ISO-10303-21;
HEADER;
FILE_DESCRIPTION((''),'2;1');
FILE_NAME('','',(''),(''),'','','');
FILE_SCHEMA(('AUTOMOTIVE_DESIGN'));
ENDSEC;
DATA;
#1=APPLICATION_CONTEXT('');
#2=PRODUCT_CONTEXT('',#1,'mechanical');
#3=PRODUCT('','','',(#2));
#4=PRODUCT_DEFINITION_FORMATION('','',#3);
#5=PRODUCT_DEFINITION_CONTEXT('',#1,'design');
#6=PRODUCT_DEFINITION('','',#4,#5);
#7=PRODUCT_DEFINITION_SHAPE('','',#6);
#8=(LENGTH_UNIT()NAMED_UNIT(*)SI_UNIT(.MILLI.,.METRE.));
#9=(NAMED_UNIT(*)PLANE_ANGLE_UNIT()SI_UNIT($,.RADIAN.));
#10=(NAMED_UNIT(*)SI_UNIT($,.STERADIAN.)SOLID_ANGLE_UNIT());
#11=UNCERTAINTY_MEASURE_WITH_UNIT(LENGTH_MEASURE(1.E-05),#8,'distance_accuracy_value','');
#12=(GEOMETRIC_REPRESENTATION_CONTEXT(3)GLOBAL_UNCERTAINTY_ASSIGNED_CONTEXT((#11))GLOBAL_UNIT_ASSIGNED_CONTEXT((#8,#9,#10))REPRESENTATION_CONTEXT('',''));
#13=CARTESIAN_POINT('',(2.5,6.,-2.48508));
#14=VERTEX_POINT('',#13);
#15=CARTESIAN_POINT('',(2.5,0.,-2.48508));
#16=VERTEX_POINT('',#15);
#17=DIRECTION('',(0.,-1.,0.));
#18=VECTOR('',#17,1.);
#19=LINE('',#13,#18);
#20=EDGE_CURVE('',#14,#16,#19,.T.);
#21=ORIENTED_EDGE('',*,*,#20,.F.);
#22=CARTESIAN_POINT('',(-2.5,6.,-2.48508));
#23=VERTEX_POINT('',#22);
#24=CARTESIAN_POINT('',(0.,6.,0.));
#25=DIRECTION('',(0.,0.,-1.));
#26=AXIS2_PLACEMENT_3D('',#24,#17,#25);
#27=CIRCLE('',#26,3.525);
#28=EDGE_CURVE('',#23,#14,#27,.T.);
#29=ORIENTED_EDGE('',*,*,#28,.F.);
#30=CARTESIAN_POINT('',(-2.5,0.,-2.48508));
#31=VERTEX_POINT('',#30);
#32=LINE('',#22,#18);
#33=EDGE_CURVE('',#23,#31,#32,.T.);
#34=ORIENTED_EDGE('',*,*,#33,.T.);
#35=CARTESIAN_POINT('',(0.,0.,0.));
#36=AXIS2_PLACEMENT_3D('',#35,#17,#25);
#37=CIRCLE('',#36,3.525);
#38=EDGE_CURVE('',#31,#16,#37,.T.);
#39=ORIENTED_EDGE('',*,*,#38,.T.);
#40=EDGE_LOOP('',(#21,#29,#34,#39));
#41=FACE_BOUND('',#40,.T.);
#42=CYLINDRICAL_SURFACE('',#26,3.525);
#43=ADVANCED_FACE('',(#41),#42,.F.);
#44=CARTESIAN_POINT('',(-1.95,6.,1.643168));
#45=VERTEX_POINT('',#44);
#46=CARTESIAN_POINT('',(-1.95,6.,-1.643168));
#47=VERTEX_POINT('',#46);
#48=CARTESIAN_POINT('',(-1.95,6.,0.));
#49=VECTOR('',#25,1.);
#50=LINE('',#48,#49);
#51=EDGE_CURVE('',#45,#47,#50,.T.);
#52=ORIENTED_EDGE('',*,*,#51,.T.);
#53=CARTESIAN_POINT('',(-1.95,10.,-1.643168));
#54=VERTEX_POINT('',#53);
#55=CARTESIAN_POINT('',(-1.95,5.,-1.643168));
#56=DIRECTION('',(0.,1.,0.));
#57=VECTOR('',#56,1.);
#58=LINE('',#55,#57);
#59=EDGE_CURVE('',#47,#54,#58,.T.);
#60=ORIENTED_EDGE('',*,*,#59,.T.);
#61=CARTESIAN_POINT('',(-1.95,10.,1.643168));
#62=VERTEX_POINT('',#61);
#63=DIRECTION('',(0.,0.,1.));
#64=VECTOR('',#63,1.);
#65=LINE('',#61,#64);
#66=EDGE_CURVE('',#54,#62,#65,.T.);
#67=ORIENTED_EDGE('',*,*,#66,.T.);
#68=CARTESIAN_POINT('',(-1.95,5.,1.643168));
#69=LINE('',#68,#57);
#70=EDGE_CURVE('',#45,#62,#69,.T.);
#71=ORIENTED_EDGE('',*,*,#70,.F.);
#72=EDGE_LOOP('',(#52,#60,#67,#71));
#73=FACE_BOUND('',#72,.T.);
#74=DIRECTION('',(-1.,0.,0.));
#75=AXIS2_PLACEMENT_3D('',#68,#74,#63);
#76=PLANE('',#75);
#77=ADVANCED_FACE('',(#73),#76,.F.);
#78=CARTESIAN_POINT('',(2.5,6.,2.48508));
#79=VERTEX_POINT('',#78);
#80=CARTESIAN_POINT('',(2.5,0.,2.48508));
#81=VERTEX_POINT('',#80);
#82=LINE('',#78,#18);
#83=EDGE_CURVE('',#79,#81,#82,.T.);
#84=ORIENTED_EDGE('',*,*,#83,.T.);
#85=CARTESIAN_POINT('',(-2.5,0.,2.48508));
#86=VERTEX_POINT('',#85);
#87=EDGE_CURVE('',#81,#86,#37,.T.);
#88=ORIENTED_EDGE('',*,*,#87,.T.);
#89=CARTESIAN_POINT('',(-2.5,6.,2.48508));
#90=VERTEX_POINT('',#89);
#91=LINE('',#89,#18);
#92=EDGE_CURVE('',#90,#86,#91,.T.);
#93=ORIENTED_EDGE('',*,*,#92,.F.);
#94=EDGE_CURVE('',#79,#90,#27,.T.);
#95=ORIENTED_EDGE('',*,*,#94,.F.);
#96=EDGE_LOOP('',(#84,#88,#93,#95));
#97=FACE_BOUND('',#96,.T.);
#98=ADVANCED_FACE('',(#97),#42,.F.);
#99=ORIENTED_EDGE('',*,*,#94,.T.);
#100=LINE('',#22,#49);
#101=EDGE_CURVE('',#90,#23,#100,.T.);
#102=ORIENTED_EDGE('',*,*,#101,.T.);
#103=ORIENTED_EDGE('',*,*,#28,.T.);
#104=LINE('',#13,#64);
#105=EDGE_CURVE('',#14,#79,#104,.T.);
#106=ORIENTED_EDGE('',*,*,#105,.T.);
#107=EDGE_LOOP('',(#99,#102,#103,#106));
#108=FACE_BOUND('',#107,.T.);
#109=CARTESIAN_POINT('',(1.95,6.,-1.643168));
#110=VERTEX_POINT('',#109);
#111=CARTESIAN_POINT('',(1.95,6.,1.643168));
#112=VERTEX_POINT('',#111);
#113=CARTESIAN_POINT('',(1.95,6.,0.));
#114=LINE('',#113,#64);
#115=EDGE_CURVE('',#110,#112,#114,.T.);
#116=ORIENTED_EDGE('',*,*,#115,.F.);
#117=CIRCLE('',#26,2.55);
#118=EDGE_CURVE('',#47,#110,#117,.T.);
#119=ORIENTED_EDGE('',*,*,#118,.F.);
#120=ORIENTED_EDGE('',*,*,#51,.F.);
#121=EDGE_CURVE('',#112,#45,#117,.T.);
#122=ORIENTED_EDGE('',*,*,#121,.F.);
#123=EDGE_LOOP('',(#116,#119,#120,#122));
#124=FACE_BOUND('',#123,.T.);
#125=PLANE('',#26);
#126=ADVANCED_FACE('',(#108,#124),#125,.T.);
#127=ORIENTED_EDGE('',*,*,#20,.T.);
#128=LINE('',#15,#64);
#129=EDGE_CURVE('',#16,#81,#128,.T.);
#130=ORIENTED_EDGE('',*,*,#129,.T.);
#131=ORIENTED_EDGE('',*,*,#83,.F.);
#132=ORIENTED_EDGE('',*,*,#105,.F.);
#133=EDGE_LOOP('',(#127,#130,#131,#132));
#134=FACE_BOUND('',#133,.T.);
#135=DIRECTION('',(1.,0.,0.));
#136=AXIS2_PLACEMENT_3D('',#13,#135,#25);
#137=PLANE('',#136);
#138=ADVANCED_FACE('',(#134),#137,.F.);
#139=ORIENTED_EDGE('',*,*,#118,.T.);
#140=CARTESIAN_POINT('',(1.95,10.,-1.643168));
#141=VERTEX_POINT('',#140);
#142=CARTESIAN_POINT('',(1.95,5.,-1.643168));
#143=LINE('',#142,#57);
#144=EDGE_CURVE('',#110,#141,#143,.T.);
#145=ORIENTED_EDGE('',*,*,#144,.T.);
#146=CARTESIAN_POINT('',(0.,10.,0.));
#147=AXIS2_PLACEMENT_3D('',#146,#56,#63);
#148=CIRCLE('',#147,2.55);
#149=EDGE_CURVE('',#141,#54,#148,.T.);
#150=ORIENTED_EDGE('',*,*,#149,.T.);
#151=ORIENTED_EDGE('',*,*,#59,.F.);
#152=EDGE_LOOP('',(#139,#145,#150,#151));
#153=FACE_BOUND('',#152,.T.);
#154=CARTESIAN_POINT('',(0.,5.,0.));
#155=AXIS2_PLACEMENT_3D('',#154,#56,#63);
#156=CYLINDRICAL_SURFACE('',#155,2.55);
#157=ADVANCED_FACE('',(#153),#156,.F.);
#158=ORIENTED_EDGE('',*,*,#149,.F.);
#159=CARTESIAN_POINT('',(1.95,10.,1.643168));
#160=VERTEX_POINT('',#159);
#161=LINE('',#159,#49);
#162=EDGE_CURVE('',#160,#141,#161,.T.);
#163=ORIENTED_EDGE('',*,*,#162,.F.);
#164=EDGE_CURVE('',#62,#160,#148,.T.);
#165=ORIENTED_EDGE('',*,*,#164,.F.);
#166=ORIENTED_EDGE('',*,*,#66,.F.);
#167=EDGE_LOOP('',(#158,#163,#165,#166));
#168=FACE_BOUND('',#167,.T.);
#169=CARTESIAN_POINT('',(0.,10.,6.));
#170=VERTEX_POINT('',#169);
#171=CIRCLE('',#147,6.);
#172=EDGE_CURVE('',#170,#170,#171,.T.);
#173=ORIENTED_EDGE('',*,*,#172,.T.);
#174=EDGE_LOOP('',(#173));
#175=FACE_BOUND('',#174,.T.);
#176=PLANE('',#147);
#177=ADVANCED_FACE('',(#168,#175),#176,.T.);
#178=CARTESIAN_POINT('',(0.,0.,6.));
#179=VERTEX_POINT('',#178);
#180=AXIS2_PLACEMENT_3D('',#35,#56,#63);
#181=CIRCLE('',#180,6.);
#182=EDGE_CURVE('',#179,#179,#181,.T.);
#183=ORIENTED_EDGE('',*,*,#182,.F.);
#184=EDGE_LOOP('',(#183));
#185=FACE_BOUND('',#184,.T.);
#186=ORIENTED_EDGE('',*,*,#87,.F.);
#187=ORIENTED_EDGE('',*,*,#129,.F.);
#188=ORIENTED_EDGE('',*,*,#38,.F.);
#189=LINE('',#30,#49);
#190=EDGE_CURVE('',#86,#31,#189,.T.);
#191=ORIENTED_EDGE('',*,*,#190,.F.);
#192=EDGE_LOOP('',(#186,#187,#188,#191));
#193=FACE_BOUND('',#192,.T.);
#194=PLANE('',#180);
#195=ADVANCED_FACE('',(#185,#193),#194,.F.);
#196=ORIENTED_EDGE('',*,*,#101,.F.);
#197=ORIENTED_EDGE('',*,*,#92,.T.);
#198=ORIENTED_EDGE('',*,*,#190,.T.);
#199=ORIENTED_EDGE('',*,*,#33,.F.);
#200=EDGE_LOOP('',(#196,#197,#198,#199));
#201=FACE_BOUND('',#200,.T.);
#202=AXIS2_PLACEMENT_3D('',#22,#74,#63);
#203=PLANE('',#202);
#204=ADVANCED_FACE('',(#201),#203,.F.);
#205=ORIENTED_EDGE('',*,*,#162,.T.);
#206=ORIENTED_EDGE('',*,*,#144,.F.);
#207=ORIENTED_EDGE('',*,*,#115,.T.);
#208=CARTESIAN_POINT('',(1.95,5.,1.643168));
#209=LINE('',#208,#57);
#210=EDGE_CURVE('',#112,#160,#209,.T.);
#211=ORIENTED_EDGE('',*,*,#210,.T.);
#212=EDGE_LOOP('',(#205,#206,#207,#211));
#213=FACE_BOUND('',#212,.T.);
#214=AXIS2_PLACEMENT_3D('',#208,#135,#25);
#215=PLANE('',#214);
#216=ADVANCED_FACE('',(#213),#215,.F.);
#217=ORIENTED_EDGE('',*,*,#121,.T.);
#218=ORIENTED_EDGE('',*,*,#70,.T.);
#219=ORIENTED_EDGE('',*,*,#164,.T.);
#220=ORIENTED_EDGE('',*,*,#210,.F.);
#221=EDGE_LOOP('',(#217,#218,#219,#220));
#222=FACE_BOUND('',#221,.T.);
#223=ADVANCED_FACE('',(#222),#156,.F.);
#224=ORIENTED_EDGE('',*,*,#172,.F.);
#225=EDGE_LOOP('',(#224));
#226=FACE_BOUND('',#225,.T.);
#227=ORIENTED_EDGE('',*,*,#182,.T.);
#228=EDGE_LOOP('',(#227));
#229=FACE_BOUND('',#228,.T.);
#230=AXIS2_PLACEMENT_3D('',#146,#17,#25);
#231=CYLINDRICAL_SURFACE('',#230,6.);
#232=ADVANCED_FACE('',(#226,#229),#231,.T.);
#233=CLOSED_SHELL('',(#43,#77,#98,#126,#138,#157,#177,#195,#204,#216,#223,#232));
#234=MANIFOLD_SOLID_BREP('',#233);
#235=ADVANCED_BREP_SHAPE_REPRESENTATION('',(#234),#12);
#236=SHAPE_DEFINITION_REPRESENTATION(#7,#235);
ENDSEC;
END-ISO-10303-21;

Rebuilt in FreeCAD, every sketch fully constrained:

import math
import FreeCAD as App
import Part
import Sketcher
from FreeCAD import Vector

doc = App.newDocument("Part")
body = doc.addObject("PartDesign::Body", "Body")

sketch1 = body.newObject("Sketcher::SketchObject", "Sketch")
sketch1.AttachmentSupport = (doc.getObject("XZ_Plane"), [""])
sketch1.MapMode = "FlatFace"
sketch1.addGeometry(Part.Circle(Vector(0, 0, 0), Vector(0, 0, 1), 6), False)
sketch1.addConstraint(Sketcher.Constraint("Coincident", 0, 3, -1, 1))
sketch1.addConstraint(Sketcher.Constraint("Diameter", 0, 12.0))
pad1 = body.newObject("PartDesign::Pad", "Pad")
pad1.Profile = sketch1
pad1.Length = 10
pad1.Reversed = True

sketch2 = body.newObject("Sketcher::SketchObject", "Sketch001")
sketch2.AttachmentSupport = (doc.getObject("XZ_Plane"), [""])
sketch2.MapMode = "FlatFace"
sketch2.addGeometry(Part.LineSegment(Vector(2.5, -2.48508, 0), Vector(2.5, 2.48508, 0)), False)
sketch2.addGeometry(Part.ArcOfCircle(Part.Circle(Vector(0, 0, 0), Vector(0, 0, 1), 3.525), math.radians(44.828524), math.radians(135.171476)), False)
sketch2.addGeometry(Part.LineSegment(Vector(-2.5, 2.48508, 0), Vector(-2.5, -2.48508, 0)), False)
sketch2.addGeometry(Part.ArcOfCircle(Part.Circle(Vector(0, 0, 0), Vector(0, 0, 1), 3.525), math.radians(-135.171476), math.radians(-44.828524)), False)
sketch2.addConstraint(Sketcher.Constraint("Coincident", 0, 2, 1, 1))
sketch2.addConstraint(Sketcher.Constraint("Coincident", 1, 2, 2, 1))
sketch2.addConstraint(Sketcher.Constraint("Coincident", 2, 2, 3, 1))
sketch2.addConstraint(Sketcher.Constraint("Coincident", 3, 2, 0, 1))
sketch2.addConstraint(Sketcher.Constraint("Vertical", 0))
sketch2.addConstraint(Sketcher.Constraint("Vertical", 2))
sketch2.addConstraint(Sketcher.Constraint("Coincident", 1, 3, -1, 1))
sketch2.addConstraint(Sketcher.Constraint("Coincident", 3, 3, -1, 1))
sketch2.addConstraint(Sketcher.Constraint("Equal", 1, 3))
sketch2.addConstraint(Sketcher.Constraint("Horizontal", 0, 2, 1, 2))
sketch2.addConstraint(Sketcher.Constraint("Radius", 1, 3.525))
sketch2.addConstraint(Sketcher.Constraint("DistanceX", 1, 2, 0, 2, 5.0))
pocket1 = body.newObject("PartDesign::Pocket", "Pocket")
pocket1.Profile = sketch2
pocket1.Length = 6

sketch3 = body.newObject("Sketcher::SketchObject", "Sketch002")
sketch3.AttachmentSupport = (doc.getObject("XZ_Plane"), [""])
sketch3.MapMode = "FlatFace"
sketch3.AttachmentOffset = App.Placement(Vector(0, 0, -10), App.Rotation())
sketch3.addGeometry(Part.LineSegment(Vector(1.95, 1.643168, 0), Vector(1.95, -1.643168, 0)), False)
sketch3.addGeometry(Part.ArcOfCircle(Part.Circle(Vector(0, 0, 0), Vector(0, 0, 1), 2.55), math.radians(-139.880833), math.radians(-40.119167)), False)
sketch3.addGeometry(Part.LineSegment(Vector(-1.95, -1.643168, 0), Vector(-1.95, 1.643168, 0)), False)
sketch3.addGeometry(Part.ArcOfCircle(Part.Circle(Vector(0, 0, 0), Vector(0, 0, 1), 2.55), math.radians(40.119167), math.radians(139.880833)), False)
sketch3.addConstraint(Sketcher.Constraint("Coincident", 0, 2, 1, 2))
sketch3.addConstraint(Sketcher.Constraint("Coincident", 1, 1, 2, 1))
sketch3.addConstraint(Sketcher.Constraint("Coincident", 2, 2, 3, 2))
sketch3.addConstraint(Sketcher.Constraint("Coincident", 3, 1, 0, 1))
sketch3.addConstraint(Sketcher.Constraint("Vertical", 0))
sketch3.addConstraint(Sketcher.Constraint("Vertical", 2))
sketch3.addConstraint(Sketcher.Constraint("Coincident", 1, 3, -1, 1))
sketch3.addConstraint(Sketcher.Constraint("Coincident", 3, 3, -1, 1))
sketch3.addConstraint(Sketcher.Constraint("Equal", 1, 3))
sketch3.addConstraint(Sketcher.Constraint("Horizontal", 0, 2, 1, 1))
sketch3.addConstraint(Sketcher.Constraint("Radius", 1, 2.55))
sketch3.addConstraint(Sketcher.Constraint("DistanceX", 1, 1, 0, 2, 3.9))
pocket2 = body.newObject("PartDesign::Pocket", "Pocket001")
pocket2.Profile = sketch3
pocket2.Length = 5
pocket2.Reversed = True

doc.recompute()
